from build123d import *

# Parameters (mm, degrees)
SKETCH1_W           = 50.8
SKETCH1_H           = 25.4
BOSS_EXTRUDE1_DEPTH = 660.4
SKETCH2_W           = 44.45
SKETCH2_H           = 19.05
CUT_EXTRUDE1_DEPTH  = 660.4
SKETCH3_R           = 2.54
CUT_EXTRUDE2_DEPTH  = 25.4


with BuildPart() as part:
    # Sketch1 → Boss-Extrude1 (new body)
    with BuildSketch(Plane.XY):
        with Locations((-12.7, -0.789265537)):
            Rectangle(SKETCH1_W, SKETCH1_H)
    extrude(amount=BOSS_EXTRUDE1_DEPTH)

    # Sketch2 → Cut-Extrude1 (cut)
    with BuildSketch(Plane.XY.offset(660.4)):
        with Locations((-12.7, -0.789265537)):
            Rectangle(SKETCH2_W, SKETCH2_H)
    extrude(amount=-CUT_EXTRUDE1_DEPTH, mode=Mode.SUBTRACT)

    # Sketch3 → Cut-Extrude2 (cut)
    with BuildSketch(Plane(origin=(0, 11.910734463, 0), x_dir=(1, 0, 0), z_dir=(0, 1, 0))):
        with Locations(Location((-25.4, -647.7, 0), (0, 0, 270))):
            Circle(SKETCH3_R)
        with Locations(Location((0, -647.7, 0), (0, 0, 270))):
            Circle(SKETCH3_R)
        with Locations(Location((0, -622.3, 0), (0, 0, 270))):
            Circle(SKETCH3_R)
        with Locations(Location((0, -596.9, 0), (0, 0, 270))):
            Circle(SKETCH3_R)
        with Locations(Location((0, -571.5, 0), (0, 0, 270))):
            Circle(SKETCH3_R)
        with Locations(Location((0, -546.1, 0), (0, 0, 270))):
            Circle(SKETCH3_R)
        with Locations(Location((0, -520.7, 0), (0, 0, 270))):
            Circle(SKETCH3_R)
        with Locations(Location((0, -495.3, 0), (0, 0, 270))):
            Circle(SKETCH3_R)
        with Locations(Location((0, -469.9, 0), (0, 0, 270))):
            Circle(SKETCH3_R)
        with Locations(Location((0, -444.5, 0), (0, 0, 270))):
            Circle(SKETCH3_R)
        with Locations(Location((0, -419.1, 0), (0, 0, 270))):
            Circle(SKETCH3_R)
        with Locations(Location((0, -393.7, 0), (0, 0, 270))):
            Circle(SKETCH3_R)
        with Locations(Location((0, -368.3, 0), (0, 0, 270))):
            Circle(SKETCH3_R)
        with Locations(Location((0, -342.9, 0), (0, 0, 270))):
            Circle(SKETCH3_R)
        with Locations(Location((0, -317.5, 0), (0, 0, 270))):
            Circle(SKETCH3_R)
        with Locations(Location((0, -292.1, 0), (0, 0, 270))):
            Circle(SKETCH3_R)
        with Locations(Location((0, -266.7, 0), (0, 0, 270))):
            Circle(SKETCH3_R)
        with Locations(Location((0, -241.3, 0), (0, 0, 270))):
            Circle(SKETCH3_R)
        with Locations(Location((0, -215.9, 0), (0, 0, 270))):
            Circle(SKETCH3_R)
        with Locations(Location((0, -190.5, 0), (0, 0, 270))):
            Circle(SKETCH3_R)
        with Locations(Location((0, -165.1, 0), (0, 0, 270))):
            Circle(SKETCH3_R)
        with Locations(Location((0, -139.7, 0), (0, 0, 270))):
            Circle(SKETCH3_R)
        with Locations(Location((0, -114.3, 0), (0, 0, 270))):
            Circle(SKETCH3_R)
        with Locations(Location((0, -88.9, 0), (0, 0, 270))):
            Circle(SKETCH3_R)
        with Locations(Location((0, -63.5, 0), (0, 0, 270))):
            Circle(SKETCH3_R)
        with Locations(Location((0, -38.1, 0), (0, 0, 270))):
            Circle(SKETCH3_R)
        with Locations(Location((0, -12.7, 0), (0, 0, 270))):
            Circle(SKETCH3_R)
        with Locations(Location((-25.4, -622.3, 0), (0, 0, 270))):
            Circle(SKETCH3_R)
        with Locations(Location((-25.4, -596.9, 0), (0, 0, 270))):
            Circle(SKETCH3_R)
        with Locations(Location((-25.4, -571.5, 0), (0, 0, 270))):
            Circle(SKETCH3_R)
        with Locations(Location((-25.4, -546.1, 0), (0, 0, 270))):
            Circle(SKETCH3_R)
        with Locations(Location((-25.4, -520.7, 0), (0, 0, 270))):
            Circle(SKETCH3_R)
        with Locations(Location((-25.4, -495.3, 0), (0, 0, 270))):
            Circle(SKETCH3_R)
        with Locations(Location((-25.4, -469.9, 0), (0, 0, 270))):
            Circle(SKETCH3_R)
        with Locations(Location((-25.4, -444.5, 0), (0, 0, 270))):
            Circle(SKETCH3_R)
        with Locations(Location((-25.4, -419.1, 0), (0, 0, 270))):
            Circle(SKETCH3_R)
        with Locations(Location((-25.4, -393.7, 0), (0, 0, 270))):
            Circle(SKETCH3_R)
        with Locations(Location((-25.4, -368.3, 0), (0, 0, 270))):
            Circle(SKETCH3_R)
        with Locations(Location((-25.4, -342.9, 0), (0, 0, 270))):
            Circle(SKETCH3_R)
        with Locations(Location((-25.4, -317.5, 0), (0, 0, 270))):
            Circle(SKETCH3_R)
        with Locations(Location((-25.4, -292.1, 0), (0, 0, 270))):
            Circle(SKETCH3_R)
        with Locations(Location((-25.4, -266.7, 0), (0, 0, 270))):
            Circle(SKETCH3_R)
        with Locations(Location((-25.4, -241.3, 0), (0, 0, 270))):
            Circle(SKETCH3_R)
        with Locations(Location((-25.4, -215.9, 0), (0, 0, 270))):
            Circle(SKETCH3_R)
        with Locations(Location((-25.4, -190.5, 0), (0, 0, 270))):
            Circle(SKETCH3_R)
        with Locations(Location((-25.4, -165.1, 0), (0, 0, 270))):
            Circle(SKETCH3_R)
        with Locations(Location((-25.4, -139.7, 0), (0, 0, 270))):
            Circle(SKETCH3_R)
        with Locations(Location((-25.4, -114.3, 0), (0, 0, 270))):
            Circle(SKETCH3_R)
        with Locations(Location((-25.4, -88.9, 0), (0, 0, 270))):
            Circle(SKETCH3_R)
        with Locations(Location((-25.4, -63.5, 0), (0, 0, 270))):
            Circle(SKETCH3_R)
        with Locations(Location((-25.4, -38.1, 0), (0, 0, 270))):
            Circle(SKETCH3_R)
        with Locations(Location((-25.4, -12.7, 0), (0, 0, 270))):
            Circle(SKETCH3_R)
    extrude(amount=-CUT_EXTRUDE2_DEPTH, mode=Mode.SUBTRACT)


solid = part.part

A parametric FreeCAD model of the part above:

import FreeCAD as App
import Part
import Sketcher
Q = App.Units.Quantity

doc = App.newDocument("Part")
body = doc.addObject("PartDesign::Body", "Body")

# Sketch on XY plane
sketch1 = body.newObject("Sketcher::SketchObject", "Sketch")
sketch1.AttachmentSupport = (doc.getObject("XY_Plane"), [""])
sketch1.MapMode = "FlatFace"
sketch1.addGeometry([
    Part.LineSegment(App.Vector(-38, 12, 0), App.Vector(-38, -13, 0)),
    Part.LineSegment(App.Vector(-38, -13, 0), App.Vector(13, -13, 0)),
    Part.LineSegment(App.Vector(13, -13, 0), App.Vector(13, 12, 0)),
    Part.LineSegment(App.Vector(13, 12, 0), App.Vector(-38, 12, 0)),
], False)
sketch1.addConstraint([
    Sketcher.Constraint("Coincident", 0, 2, 1, 1),
    Sketcher.Constraint("Coincident", 1, 2, 2, 1),
    Sketcher.Constraint("Coincident", 2, 2, 3, 1),
    Sketcher.Constraint("Coincident", 3, 2, 0, 1),
    Sketcher.Constraint("Vertical", 0),
    Sketcher.Constraint("Horizontal", 1),
    Sketcher.Constraint("Vertical", 2),
    Sketcher.Constraint("Horizontal", 3),
    Sketcher.Constraint("DistanceX", 1, 1, 1, 2, Q("2 in")),
    Sketcher.Constraint("DistanceY", 0, 2, 0, 1, Q("1 in")),
    Sketcher.Constraint("DistanceX", 0, 2, -1, 1, Q("1.5 in")),
    Sketcher.Constraint("DistanceY", 0, 2, -1, 1, Q("13.489266 mm")),
])
pad1 = body.newObject("PartDesign::Pad", "Pad")
pad1.Profile = sketch1
pad1.Length = Q("26 in")

# Sketch on XY plane
sketch2 = body.newObject("Sketcher::SketchObject", "Sketch001")
sketch2.AttachmentSupport = (doc.getObject("XY_Plane"), [""])
sketch2.MapMode = "FlatFace"
sketch2.AttachmentOffset = App.Placement(App.Vector(0, 0, 26 * 25.4), App.Rotation())
sketch2.addGeometry([
    Part.LineSegment(App.Vector(-35, 9, 0), App.Vector(-35, -10, 0)),
    Part.LineSegment(App.Vector(-35, -10, 0), App.Vector(10, -10, 0)),
    Part.LineSegment(App.Vector(10, -10, 0), App.Vector(10, 9, 0)),
    Part.LineSegment(App.Vector(10, 9, 0), App.Vector(-35, 9, 0)),
], False)
sketch2.addConstraint([
    Sketcher.Constraint("Coincident", 0, 2, 1, 1),
    Sketcher.Constraint("Coincident", 1, 2, 2, 1),
    Sketcher.Constraint("Coincident", 2, 2, 3, 1),
    Sketcher.Constraint("Coincident", 3, 2, 0, 1),
    Sketcher.Constraint("Vertical", 0),
    Sketcher.Constraint("Horizontal", 1),
    Sketcher.Constraint("Vertical", 2),
    Sketcher.Constraint("Horizontal", 3),
    Sketcher.Constraint("DistanceX", 1, 1, 1, 2, Q("1.75 in")),
    Sketcher.Constraint("DistanceY", 0, 2, 0, 1, Q("0.75 in")),
    Sketcher.Constraint("DistanceX", 0, 2, -1, 1, Q("1.375 in")),
    Sketcher.Constraint("DistanceY", 0, 2, -1, 1, Q("10.314266 mm")),
])
pocket1 = body.newObject("PartDesign::Pocket", "Pocket")
pocket1.Profile = sketch2
pocket1.Length = Q("26 in")

# Sketch on XZ plane
sketch3 = body.newObject("Sketcher::SketchObject", "Sketch002")
sketch3.AttachmentSupport = (doc.getObject("XZ_Plane"), [""])
sketch3.MapMode = "FlatFace"
sketch3.AttachmentOffset = App.Placement(App.Vector(0, 0, -11.910734), App.Rotation())
sketch3.addGeometry([
    Part.Circle(App.Vector(-25.4, 647.7, 0), App.Vector(0, 0, 1), 2.5),  # 0
    Part.Circle(App.Vector(0, 647.7, 0), App.Vector(0, 0, 1), 2.5),  # 1
    Part.Circle(App.Vector(0, 622.3, 0), App.Vector(0, 0, 1), 2.5),  # 2
    Part.Circle(App.Vector(0, 596.9, 0), App.Vector(0, 0, 1), 2.5),  # 3
    Part.Circle(App.Vector(0, 571.5, 0), App.Vector(0, 0, 1), 2.5),  # 4
    Part.Circle(App.Vector(0, 546.1, 0), App.Vector(0, 0, 1), 2.5),  # 5
    Part.Circle(App.Vector(0, 520.7, 0), App.Vector(0, 0, 1), 2.5),  # 6
    Part.Circle(App.Vector(0, 495.3, 0), App.Vector(0, 0, 1), 2.5),  # 7
    Part.Circle(App.Vector(0, 469.9, 0), App.Vector(0, 0, 1), 2.5),  # 8
    Part.Circle(App.Vector(0, 444.5, 0), App.Vector(0, 0, 1), 2.5),  # 9
    Part.Circle(App.Vector(0, 419.1, 0), App.Vector(0, 0, 1), 2.5),  # 10
    Part.Circle(App.Vector(0, 393.7, 0), App.Vector(0, 0, 1), 2.5),  # 11
    Part.Circle(App.Vector(0, 368.3, 0), App.Vector(0, 0, 1), 2.5),  # 12
    Part.Circle(App.Vector(0, 342.9, 0), App.Vector(0, 0, 1), 2.5),  # 13
    Part.Circle(App.Vector(0, 317.5, 0), App.Vector(0, 0, 1), 2.5),  # 14
    Part.Circle(App.Vector(0, 292.1, 0), App.Vector(0, 0, 1), 2.5),  # 15
    Part.Circle(App.Vector(0, 266.7, 0), App.Vector(0, 0, 1), 2.5),  # 16
    Part.Circle(App.Vector(0, 241.3, 0), App.Vector(0, 0, 1), 2.5),  # 17
    Part.Circle(App.Vector(0, 215.9, 0), App.Vector(0, 0, 1), 2.5),  # 18
    Part.Circle(App.Vector(0, 190.5, 0), App.Vector(0, 0, 1), 2.5),  # 19
    Part.Circle(App.Vector(0, 165.1, 0), App.Vector(0, 0, 1), 2.5),  # 20
    Part.Circle(App.Vector(0, 139.7, 0), App.Vector(0, 0, 1), 2.5),  # 21
    Part.Circle(App.Vector(0, 114.3, 0), App.Vector(0, 0, 1), 2.5),  # 22
    Part.Circle(App.Vector(0, 88.9, 0), App.Vector(0, 0, 1), 2.5),  # 23
    Part.Circle(App.Vector(0, 63.5, 0), App.Vector(0, 0, 1), 2.5),  # 24
    Part.Circle(App.Vector(0, 38.1, 0), App.Vector(0, 0, 1), 2.5),  # 25
    Part.Circle(App.Vector(0, 12.7, 0), App.Vector(0, 0, 1), 2.5),  # 26
    Part.Circle(App.Vector(-25.4, 622.3, 0), App.Vector(0, 0, 1), 2.5),  # 27
    Part.Circle(App.Vector(-25.4, 596.9, 0), App.Vector(0, 0, 1), 2.5),  # 28
    Part.Circle(App.Vector(-25.4, 571.5, 0), App.Vector(0, 0, 1), 2.5),  # 29
    Part.Circle(App.Vector(-25.4, 546.1, 0), App.Vector(0, 0, 1), 2.5),  # 30
    Part.Circle(App.Vector(-25.4, 520.7, 0), App.Vector(0, 0, 1), 2.5),  # 31
    Part.Circle(App.Vector(-25.4, 495.3, 0), App.Vector(0, 0, 1), 2.5),  # 32
    Part.Circle(App.Vector(-25.4, 469.9, 0), App.Vector(0, 0, 1), 2.5),  # 33
    Part.Circle(App.Vector(-25.4, 444.5, 0), App.Vector(0, 0, 1), 2.5),  # 34
    Part.Circle(App.Vector(-25.4, 419.1, 0), App.Vector(0, 0, 1), 2.5),  # 35
    Part.Circle(App.Vector(-25.4, 393.7, 0), App.Vector(0, 0, 1), 2.5),  # 36
    Part.Circle(App.Vector(-25.4, 368.3, 0), App.Vector(0, 0, 1), 2.5),  # 37
    Part.Circle(App.Vector(-25.4, 342.9, 0), App.Vector(0, 0, 1), 2.5),  # 38
    Part.Circle(App.Vector(-25.4, 317.5, 0), App.Vector(0, 0, 1), 2.5),  # 39
    Part.Circle(App.Vector(-25.4, 292.1, 0), App.Vector(0, 0, 1), 2.5),  # 40
    Part.Circle(App.Vector(-25.4, 266.7, 0), App.Vector(0, 0, 1), 2.5),  # 41
    Part.Circle(App.Vector(-25.4, 241.3, 0), App.Vector(0, 0, 1), 2.5),  # 42
    Part.Circle(App.Vector(-25.4, 215.9, 0), App.Vector(0, 0, 1), 2.5),  # 43
    Part.Circle(App.Vector(-25.4, 190.5, 0), App.Vector(0, 0, 1), 2.5),  # 44
    Part.Circle(App.Vector(-25.4, 165.1, 0), App.Vector(0, 0, 1), 2.5),  # 45
    Part.Circle(App.Vector(-25.4, 139.7, 0), App.Vector(0, 0, 1), 2.5),  # 46
    Part.Circle(App.Vector(-25.4, 114.3, 0), App.Vector(0, 0, 1), 2.5),  # 47
    Part.Circle(App.Vector(-25.4, 88.9, 0), App.Vector(0, 0, 1), 2.5),  # 48
    Part.Circle(App.Vector(-25.4, 63.5, 0), App.Vector(0, 0, 1), 2.5),  # 49
    Part.Circle(App.Vector(-25.4, 38.1, 0), App.Vector(0, 0, 1), 2.5),  # 50
    Part.Circle(App.Vector(-25.4, 12.7, 0), App.Vector(0, 0, 1), 2.5),  # 51
], False)
sketch3.addConstraint([
    Sketcher.Constraint("Equal", 0, 1),
    Sketcher.Constraint("Equal", 1, 2),
    Sketcher.Constraint("Equal", 2, 3),
    Sketcher.Constraint("Equal", 3, 4),
    Sketcher.Constraint("Equal", 4, 5),
    Sketcher.Constraint("Equal", 5, 6),
    Sketcher.Constraint("Equal", 6, 7),
    Sketcher.Constraint("Equal", 7, 8),
    Sketcher.Constraint("Equal", 8, 9),
    Sketcher.Constraint("Equal", 9, 10),
    Sketcher.Constraint("Equal", 10, 11),
    Sketcher.Constraint("Equal", 11, 12),
    Sketcher.Constraint("Equal", 12, 13),
    Sketcher.Constraint("Equal", 13, 14),
    Sketcher.Constraint("Equal", 14, 15),
    Sketcher.Constraint("Equal", 15, 16),
    Sketcher.Constraint("Equal", 16, 17),
    Sketcher.Constraint("Equal", 17, 18),
    Sketcher.Constraint("Equal", 18, 19),
    Sketcher.Constraint("Equal", 19, 20),
    Sketcher.Constraint("Equal", 20, 21),
    Sketcher.Constraint("Equal", 21, 22),
    Sketcher.Constraint("Equal", 22, 23),
    Sketcher.Constraint("Equal", 23, 24),
    Sketcher.Constraint("Equal", 24, 25),
    Sketcher.Constraint("Equal", 25, 26),
    Sketcher.Constraint("Equal", 26, 27),
    Sketcher.Constraint("Equal", 27, 28),
    Sketcher.Constraint("Equal", 28, 29),
    Sketcher.Constraint("Equal", 29, 30),
    Sketcher.Constraint("Equal", 30, 31),
    Sketcher.Constraint("Equal", 31, 32),
    Sketcher.Constraint("Equal", 32, 33),
    Sketcher.Constraint("Equal", 33, 34),
    Sketcher.Constraint("Equal", 34, 35),
    Sketcher.Constraint("Equal", 35, 36),
    Sketcher.Constraint("Equal", 36, 37),
    Sketcher.Constraint("Equal", 37, 38),
    Sketcher.Constraint("Equal", 38, 39),
    Sketcher.Constraint("Equal", 39, 40),
    Sketcher.Constraint("Equal", 40, 41),
    Sketcher.Constraint("Equal", 41, 42),
    Sketcher.Constraint("Equal", 42, 43),
    Sketcher.Constraint("Equal", 43, 44),
    Sketcher.Constraint("Equal", 44, 45),
    Sketcher.Constraint("Equal", 45, 46),
    Sketcher.Constraint("Equal", 46, 47),
    Sketcher.Constraint("Equal", 47, 48),
    Sketcher.Constraint("Equal", 48, 49),
    Sketcher.Constraint("Equal", 49, 50),
    Sketcher.Constraint("Equal", 50, 51),
    Sketcher.Constraint("PointOnObject", 1, 3, -2),
    Sketcher.Constraint("PointOnObject", 2, 3, -2),
    Sketcher.Constraint("PointOnObject", 3, 3, -2),
    Sketcher.Constraint("PointOnObject", 4, 3, -2),
    Sketcher.Constraint("PointOnObject", 5, 3, -2),
    Sketcher.Constraint("PointOnObject", 6, 3, -2),
    Sketcher.Constraint("PointOnObject", 7, 3, -2),
    Sketcher.Constraint("PointOnObject", 8, 3, -2),
    Sketcher.Constraint("PointOnObject", 9, 3, -2),
    Sketcher.Constraint("PointOnObject", 10, 3, -2),
    Sketcher.Constraint("PointOnObject", 11, 3, -2),
    Sketcher.Constraint("PointOnObject", 12, 3, -2),
    Sketcher.Constraint("PointOnObject", 13, 3, -2),
    Sketcher.Constraint("PointOnObject", 14, 3, -2),
    Sketcher.Constraint("PointOnObject", 15, 3, -2),
    Sketcher.Constraint("PointOnObject", 16, 3, -2),
    Sketcher.Constraint("PointOnObject", 17, 3, -2),
    Sketcher.Constraint("PointOnObject", 18, 3, -2),
    Sketcher.Constraint("PointOnObject", 19, 3, -2),
    Sketcher.Constraint("PointOnObject", 20, 3, -2),
    Sketcher.Constraint("PointOnObject", 21, 3, -2),
    Sketcher.Constraint("PointOnObject", 22, 3, -2),
    Sketcher.Constraint("PointOnObject", 23, 3, -2),
    Sketcher.Constraint("PointOnObject", 24, 3, -2),
    Sketcher.Constraint("PointOnObject", 25, 3, -2),
    Sketcher.Constraint("PointOnObject", 26, 3, -2),
    Sketcher.Constraint("Horizontal", 0, 3, 1, 3),
    Sketcher.Constraint("Horizontal", 2, 3, 27, 3),
    Sketcher.Constraint("Horizontal", 3, 3, 28, 3),
    Sketcher.Constraint("Horizontal", 4, 3, 29, 3),
    Sketcher.Constraint("Horizontal", 5, 3, 30, 3),
    Sketcher.Constraint("Horizontal", 6, 3, 31, 3),
    Sketcher.Constraint("Horizontal", 7, 3, 32, 3),
    Sketcher.Constraint("Horizontal", 8, 3, 33, 3),
    Sketcher.Constraint("Horizontal", 9, 3, 34, 3),
    Sketcher.Constraint("Horizontal", 10, 3, 35, 3),
    Sketcher.Constraint("Horizontal", 11, 3, 36, 3),
    Sketcher.Constraint("Horizontal", 12, 3, 37, 3),
    Sketcher.Constraint("Horizontal", 13, 3, 38, 3),
    Sketcher.Constraint("Horizontal", 14, 3, 39, 3),
    Sketcher.Constraint("Horizontal", 15, 3, 40, 3),
    Sketcher.Constraint("Horizontal", 16, 3, 41, 3),
    Sketcher.Constraint("Horizontal", 17, 3, 42, 3),
    Sketcher.Constraint("Horizontal", 18, 3, 43, 3),
    Sketcher.Constraint("Horizontal", 19, 3, 44, 3),
    Sketcher.Constraint("Horizontal", 20, 3, 45, 3),
    Sketcher.Constraint("Horizontal", 21, 3, 46, 3),
    Sketcher.Constraint("Horizontal", 22, 3, 47, 3),
    Sketcher.Constraint("Horizontal", 23, 3, 48, 3),
    Sketcher.Constraint("Horizontal", 24, 3, 49, 3),
    Sketcher.Constraint("Horizontal", 25, 3, 50, 3),
    Sketcher.Constraint("Horizontal", 26, 3, 51, 3),
    Sketcher.Constraint("Vertical", 0, 3, 27, 3),
    Sketcher.Constraint("Vertical", 27, 3, 28, 3),
    Sketcher.Constraint("Vertical", 28, 3, 29, 3),
    Sketcher.Constraint("Vertical", 29, 3, 30, 3),
    Sketcher.Constraint("Vertical", 30, 3, 31, 3),
    Sketcher.Constraint("Vertical", 31, 3, 32, 3),
    Sketcher.Constraint("Vertical", 32, 3, 33, 3),
    Sketcher.Constraint("Vertical", 33, 3, 34, 3),
    Sketcher.Constraint("Vertical", 34, 3, 35, 3),
    Sketcher.Constraint("Vertical", 35, 3, 36, 3),
    Sketcher.Constraint("Vertical", 36, 3, 37, 3),
    Sketcher.Constraint("Vertical", 37, 3, 38, 3),
    Sketcher.Constraint("Vertical", 38, 3, 39, 3),
    Sketcher.Constraint("Vertical", 39, 3, 40, 3),
    Sketcher.Constraint("Vertical", 40, 3, 41, 3),
    Sketcher.Constraint("Vertical", 41, 3, 42, 3),
    Sketcher.Constraint("Vertical", 42, 3, 43, 3),
    Sketcher.Constraint("Vertical", 43, 3, 44, 3),
    Sketcher.Constraint("Vertical", 44, 3, 45, 3),
    Sketcher.Constraint("Vertical", 45, 3, 46, 3),
    Sketcher.Constraint("Vertical", 46, 3, 47, 3),
    Sketcher.Constraint("Vertical", 47, 3, 48, 3),
    Sketcher.Constraint("Vertical", 48, 3, 49, 3),
    Sketcher.Constraint("Vertical", 49, 3, 50, 3),
    Sketcher.Constraint("Vertical", 50, 3, 51, 3),
    Sketcher.Constraint("Diameter", 0, Q("0.2 in")),
    Sketcher.Constraint("DistanceX", 0, 3, -1, 1, Q("1 in")),
    Sketcher.Constraint("DistanceY", 2, 3, 1, 3, Q("1 in")),
    Sketcher.Constraint("DistanceY", 3, 3, 2, 3, Q("1 in")),
    Sketcher.Constraint("DistanceY", 4, 3, 3, 3, Q("1 in")),
    Sketcher.Constraint("DistanceY", 5, 3, 4, 3, Q("1 in")),
    Sketcher.Constraint("DistanceY", 6, 3, 5, 3, Q("1 in")),
    Sketcher.Constraint("DistanceY", 7, 3, 6, 3, Q("1 in")),
    Sketcher.Constraint("DistanceY", 8, 3, 7, 3, Q("1 in")),
    Sketcher.Constraint("DistanceY", 9, 3, 8, 3, Q("1 in")),
    Sketcher.Constraint("DistanceY", 10, 3, 9, 3, Q("1 in")),
    Sketcher.Constraint("DistanceY", 11, 3, 10, 3, Q("1 in")),
    Sketcher.Constraint("DistanceY", 12, 3, 11, 3, Q("1 in")),
    Sketcher.Constraint("DistanceY", 13, 3, 12, 3, Q("1 in")),
    Sketcher.Constraint("DistanceY", 14, 3, 13, 3, Q("1 in")),
    Sketcher.Constraint("DistanceY", 15, 3, 14, 3, Q("1 in")),
    Sketcher.Constraint("DistanceY", 16, 3, 15, 3, Q("1 in")),
    Sketcher.Constraint("DistanceY", 17, 3, 16, 3, Q("1 in")),
    Sketcher.Constraint("DistanceY", 18, 3, 17, 3, Q("1 in")),
    Sketcher.Constraint("DistanceY", 19, 3, 18, 3, Q("1 in")),
    Sketcher.Constraint("DistanceY", 20, 3, 19, 3, Q("1 in")),
    Sketcher.Constraint("DistanceY", 21, 3, 20, 3, Q("1 in")),
    Sketcher.Constraint("DistanceY", 22, 3, 21, 3, Q("1 in")),
    Sketcher.Constraint("DistanceY", 23, 3, 22, 3, Q("1 in")),
    Sketcher.Constraint("DistanceY", 24, 3, 23, 3, Q("1 in")),
    Sketcher.Constraint("DistanceY", 25, 3, 24, 3, Q("1 in")),
    Sketcher.Constraint("DistanceY", 26, 3, 25, 3, Q("1 in")),
    Sketcher.Constraint("DistanceY", -1, 1, 0, 3, Q("25.5 in")),
])
pocket2 = body.newObject("PartDesign::Pocket", "Pocket001")
pocket2.Profile = sketch3
pocket2.Length = Q("1 in")
pocket2.Reversed = True

doc.recompute()
